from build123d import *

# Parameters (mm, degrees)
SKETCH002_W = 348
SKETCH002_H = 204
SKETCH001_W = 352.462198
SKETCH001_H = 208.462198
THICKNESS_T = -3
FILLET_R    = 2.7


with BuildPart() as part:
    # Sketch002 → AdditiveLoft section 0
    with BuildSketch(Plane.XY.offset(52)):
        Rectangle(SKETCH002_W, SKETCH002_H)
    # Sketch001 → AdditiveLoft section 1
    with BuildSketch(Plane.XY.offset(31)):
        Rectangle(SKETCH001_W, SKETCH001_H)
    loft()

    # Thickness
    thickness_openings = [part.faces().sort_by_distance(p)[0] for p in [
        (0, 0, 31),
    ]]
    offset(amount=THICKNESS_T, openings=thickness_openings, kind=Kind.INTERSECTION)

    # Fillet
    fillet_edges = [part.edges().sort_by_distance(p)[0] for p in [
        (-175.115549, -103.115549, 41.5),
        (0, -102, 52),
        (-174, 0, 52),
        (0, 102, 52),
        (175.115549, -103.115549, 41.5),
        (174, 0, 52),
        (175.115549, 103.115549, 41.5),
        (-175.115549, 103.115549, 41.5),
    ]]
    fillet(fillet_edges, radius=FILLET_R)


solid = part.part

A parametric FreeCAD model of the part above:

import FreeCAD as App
import Part
import Sketcher

V = App.Vector


def edges_at(feature, points):
    """Names of the edges that pass closest to the given points."""
    edges = feature.Shape.Edges
    near = lambda p: min(range(len(edges)), key=lambda i: edges[i].distToShape(Part.Vertex(*p))[0])
    return sorted({f"Edge{near(p) + 1}" for p in points})


def faces_at(feature, points):
    """Names of the faces that lie closest to the given points."""
    faces = feature.Shape.Faces
    near = lambda p: min(range(len(faces)), key=lambda i: faces[i].distToShape(Part.Vertex(*p))[0])
    return sorted({f"Face{near(p) + 1}" for p in points})


def add_polygon(sketch, points):
    """Adds a closed chain of lines whose ends are joined by coincident constraints."""
    first, n = sketch.GeometryCount, len(points)
    for a, b in zip(points, points[1:] + points[:1]):
        sketch.addGeometry(Part.LineSegment(App.Vector(*a, 0), App.Vector(*b, 0)), False)
    for i in range(n):
        sketch.addConstraint(Sketcher.Constraint("Coincident", first + i, 2, first + (i + 1) % n, 1))

doc = App.newDocument("Part")
body = doc.addObject("PartDesign::Body", "Body")

# Sketch on XY plane
sketch1 = body.newObject("Sketcher::SketchObject", "Sketch")
sketch1.AttachmentSupport = (doc.getObject("XY_Plane"), [""])
sketch1.MapMode = "FlatFace"
sketch1.AttachmentOffset = App.Placement(V(0, 0, 52), App.Rotation())
add_polygon(sketch1, [(-174, 102), (-174, -102), (174, -102), (174, 102)])  # lines 0-3
sketch1.addConstraint([
    Sketcher.Constraint("Vertical", 0),
    Sketcher.Constraint("Horizontal", 1),
    Sketcher.Constraint("Vertical", 2),
    Sketcher.Constraint("Horizontal", 3),
    Sketcher.Constraint("Symmetric", 0, 2, 2, 2, -1, 1),
    Sketcher.Constraint("DistanceX", 1, 1, 1, 2, 348.0),
    Sketcher.Constraint("DistanceY", 0, 2, 0, 1, 204.0),
])

# Sketch on XY plane
sketch2 = body.newObject("Sketcher::SketchObject", "Sketch001")
sketch2.AttachmentSupport = (doc.getObject("XY_Plane"), [""])
sketch2.MapMode = "FlatFace"
sketch2.AttachmentOffset = App.Placement(V(0, 0, 31), App.Rotation())
add_polygon(sketch2, [(-176.231099, 104.231099), (-176.231099, -104.231099), (176.231099, -104.231099), (176.231099, 104.231099)])  # lines 0-3
sketch2.addConstraint([
    Sketcher.Constraint("Vertical", 0),
    Sketcher.Constraint("Horizontal", 1),
    Sketcher.Constraint("Vertical", 2),
    Sketcher.Constraint("Horizontal", 3),
    Sketcher.Constraint("Symmetric", 0, 2, 2, 2, -1, 1),
    Sketcher.Constraint("DistanceX", 1, 1, 1, 2, 352.462198),
    Sketcher.Constraint("DistanceY", 0, 2, 0, 1, 208.462198),
])

additiveloft = body.newObject("PartDesign::AdditiveLoft", "AdditiveLoft")
additiveloft.Profile = sketch1
additiveloft.Sections = [sketch2]
doc.recompute()

thickness = body.newObject("PartDesign::Thickness", "Thickness")
thickness.Base = (additiveloft, faces_at(additiveloft, [(0, 0, 31)]))
thickness.Value = 3
thickness.Reversed = True
thickness.Join = "Intersection"
doc.recompute()

fillet = body.newObject("PartDesign::Fillet", "Fillet")
fillet.Base = (thickness, edges_at(thickness, [
    (-175.116, -103.116, 41.5),
    (0, -102, 52),
    (-174, 0, 52),
    (0, 102, 52),
    (175.116, -103.116, 41.5),
    (174, 0, 52),
    (175.116, 103.116, 41.5),
    (-175.116, 103.116, 41.5),
]))
fillet.Radius = 2.7

doc.recompute()
